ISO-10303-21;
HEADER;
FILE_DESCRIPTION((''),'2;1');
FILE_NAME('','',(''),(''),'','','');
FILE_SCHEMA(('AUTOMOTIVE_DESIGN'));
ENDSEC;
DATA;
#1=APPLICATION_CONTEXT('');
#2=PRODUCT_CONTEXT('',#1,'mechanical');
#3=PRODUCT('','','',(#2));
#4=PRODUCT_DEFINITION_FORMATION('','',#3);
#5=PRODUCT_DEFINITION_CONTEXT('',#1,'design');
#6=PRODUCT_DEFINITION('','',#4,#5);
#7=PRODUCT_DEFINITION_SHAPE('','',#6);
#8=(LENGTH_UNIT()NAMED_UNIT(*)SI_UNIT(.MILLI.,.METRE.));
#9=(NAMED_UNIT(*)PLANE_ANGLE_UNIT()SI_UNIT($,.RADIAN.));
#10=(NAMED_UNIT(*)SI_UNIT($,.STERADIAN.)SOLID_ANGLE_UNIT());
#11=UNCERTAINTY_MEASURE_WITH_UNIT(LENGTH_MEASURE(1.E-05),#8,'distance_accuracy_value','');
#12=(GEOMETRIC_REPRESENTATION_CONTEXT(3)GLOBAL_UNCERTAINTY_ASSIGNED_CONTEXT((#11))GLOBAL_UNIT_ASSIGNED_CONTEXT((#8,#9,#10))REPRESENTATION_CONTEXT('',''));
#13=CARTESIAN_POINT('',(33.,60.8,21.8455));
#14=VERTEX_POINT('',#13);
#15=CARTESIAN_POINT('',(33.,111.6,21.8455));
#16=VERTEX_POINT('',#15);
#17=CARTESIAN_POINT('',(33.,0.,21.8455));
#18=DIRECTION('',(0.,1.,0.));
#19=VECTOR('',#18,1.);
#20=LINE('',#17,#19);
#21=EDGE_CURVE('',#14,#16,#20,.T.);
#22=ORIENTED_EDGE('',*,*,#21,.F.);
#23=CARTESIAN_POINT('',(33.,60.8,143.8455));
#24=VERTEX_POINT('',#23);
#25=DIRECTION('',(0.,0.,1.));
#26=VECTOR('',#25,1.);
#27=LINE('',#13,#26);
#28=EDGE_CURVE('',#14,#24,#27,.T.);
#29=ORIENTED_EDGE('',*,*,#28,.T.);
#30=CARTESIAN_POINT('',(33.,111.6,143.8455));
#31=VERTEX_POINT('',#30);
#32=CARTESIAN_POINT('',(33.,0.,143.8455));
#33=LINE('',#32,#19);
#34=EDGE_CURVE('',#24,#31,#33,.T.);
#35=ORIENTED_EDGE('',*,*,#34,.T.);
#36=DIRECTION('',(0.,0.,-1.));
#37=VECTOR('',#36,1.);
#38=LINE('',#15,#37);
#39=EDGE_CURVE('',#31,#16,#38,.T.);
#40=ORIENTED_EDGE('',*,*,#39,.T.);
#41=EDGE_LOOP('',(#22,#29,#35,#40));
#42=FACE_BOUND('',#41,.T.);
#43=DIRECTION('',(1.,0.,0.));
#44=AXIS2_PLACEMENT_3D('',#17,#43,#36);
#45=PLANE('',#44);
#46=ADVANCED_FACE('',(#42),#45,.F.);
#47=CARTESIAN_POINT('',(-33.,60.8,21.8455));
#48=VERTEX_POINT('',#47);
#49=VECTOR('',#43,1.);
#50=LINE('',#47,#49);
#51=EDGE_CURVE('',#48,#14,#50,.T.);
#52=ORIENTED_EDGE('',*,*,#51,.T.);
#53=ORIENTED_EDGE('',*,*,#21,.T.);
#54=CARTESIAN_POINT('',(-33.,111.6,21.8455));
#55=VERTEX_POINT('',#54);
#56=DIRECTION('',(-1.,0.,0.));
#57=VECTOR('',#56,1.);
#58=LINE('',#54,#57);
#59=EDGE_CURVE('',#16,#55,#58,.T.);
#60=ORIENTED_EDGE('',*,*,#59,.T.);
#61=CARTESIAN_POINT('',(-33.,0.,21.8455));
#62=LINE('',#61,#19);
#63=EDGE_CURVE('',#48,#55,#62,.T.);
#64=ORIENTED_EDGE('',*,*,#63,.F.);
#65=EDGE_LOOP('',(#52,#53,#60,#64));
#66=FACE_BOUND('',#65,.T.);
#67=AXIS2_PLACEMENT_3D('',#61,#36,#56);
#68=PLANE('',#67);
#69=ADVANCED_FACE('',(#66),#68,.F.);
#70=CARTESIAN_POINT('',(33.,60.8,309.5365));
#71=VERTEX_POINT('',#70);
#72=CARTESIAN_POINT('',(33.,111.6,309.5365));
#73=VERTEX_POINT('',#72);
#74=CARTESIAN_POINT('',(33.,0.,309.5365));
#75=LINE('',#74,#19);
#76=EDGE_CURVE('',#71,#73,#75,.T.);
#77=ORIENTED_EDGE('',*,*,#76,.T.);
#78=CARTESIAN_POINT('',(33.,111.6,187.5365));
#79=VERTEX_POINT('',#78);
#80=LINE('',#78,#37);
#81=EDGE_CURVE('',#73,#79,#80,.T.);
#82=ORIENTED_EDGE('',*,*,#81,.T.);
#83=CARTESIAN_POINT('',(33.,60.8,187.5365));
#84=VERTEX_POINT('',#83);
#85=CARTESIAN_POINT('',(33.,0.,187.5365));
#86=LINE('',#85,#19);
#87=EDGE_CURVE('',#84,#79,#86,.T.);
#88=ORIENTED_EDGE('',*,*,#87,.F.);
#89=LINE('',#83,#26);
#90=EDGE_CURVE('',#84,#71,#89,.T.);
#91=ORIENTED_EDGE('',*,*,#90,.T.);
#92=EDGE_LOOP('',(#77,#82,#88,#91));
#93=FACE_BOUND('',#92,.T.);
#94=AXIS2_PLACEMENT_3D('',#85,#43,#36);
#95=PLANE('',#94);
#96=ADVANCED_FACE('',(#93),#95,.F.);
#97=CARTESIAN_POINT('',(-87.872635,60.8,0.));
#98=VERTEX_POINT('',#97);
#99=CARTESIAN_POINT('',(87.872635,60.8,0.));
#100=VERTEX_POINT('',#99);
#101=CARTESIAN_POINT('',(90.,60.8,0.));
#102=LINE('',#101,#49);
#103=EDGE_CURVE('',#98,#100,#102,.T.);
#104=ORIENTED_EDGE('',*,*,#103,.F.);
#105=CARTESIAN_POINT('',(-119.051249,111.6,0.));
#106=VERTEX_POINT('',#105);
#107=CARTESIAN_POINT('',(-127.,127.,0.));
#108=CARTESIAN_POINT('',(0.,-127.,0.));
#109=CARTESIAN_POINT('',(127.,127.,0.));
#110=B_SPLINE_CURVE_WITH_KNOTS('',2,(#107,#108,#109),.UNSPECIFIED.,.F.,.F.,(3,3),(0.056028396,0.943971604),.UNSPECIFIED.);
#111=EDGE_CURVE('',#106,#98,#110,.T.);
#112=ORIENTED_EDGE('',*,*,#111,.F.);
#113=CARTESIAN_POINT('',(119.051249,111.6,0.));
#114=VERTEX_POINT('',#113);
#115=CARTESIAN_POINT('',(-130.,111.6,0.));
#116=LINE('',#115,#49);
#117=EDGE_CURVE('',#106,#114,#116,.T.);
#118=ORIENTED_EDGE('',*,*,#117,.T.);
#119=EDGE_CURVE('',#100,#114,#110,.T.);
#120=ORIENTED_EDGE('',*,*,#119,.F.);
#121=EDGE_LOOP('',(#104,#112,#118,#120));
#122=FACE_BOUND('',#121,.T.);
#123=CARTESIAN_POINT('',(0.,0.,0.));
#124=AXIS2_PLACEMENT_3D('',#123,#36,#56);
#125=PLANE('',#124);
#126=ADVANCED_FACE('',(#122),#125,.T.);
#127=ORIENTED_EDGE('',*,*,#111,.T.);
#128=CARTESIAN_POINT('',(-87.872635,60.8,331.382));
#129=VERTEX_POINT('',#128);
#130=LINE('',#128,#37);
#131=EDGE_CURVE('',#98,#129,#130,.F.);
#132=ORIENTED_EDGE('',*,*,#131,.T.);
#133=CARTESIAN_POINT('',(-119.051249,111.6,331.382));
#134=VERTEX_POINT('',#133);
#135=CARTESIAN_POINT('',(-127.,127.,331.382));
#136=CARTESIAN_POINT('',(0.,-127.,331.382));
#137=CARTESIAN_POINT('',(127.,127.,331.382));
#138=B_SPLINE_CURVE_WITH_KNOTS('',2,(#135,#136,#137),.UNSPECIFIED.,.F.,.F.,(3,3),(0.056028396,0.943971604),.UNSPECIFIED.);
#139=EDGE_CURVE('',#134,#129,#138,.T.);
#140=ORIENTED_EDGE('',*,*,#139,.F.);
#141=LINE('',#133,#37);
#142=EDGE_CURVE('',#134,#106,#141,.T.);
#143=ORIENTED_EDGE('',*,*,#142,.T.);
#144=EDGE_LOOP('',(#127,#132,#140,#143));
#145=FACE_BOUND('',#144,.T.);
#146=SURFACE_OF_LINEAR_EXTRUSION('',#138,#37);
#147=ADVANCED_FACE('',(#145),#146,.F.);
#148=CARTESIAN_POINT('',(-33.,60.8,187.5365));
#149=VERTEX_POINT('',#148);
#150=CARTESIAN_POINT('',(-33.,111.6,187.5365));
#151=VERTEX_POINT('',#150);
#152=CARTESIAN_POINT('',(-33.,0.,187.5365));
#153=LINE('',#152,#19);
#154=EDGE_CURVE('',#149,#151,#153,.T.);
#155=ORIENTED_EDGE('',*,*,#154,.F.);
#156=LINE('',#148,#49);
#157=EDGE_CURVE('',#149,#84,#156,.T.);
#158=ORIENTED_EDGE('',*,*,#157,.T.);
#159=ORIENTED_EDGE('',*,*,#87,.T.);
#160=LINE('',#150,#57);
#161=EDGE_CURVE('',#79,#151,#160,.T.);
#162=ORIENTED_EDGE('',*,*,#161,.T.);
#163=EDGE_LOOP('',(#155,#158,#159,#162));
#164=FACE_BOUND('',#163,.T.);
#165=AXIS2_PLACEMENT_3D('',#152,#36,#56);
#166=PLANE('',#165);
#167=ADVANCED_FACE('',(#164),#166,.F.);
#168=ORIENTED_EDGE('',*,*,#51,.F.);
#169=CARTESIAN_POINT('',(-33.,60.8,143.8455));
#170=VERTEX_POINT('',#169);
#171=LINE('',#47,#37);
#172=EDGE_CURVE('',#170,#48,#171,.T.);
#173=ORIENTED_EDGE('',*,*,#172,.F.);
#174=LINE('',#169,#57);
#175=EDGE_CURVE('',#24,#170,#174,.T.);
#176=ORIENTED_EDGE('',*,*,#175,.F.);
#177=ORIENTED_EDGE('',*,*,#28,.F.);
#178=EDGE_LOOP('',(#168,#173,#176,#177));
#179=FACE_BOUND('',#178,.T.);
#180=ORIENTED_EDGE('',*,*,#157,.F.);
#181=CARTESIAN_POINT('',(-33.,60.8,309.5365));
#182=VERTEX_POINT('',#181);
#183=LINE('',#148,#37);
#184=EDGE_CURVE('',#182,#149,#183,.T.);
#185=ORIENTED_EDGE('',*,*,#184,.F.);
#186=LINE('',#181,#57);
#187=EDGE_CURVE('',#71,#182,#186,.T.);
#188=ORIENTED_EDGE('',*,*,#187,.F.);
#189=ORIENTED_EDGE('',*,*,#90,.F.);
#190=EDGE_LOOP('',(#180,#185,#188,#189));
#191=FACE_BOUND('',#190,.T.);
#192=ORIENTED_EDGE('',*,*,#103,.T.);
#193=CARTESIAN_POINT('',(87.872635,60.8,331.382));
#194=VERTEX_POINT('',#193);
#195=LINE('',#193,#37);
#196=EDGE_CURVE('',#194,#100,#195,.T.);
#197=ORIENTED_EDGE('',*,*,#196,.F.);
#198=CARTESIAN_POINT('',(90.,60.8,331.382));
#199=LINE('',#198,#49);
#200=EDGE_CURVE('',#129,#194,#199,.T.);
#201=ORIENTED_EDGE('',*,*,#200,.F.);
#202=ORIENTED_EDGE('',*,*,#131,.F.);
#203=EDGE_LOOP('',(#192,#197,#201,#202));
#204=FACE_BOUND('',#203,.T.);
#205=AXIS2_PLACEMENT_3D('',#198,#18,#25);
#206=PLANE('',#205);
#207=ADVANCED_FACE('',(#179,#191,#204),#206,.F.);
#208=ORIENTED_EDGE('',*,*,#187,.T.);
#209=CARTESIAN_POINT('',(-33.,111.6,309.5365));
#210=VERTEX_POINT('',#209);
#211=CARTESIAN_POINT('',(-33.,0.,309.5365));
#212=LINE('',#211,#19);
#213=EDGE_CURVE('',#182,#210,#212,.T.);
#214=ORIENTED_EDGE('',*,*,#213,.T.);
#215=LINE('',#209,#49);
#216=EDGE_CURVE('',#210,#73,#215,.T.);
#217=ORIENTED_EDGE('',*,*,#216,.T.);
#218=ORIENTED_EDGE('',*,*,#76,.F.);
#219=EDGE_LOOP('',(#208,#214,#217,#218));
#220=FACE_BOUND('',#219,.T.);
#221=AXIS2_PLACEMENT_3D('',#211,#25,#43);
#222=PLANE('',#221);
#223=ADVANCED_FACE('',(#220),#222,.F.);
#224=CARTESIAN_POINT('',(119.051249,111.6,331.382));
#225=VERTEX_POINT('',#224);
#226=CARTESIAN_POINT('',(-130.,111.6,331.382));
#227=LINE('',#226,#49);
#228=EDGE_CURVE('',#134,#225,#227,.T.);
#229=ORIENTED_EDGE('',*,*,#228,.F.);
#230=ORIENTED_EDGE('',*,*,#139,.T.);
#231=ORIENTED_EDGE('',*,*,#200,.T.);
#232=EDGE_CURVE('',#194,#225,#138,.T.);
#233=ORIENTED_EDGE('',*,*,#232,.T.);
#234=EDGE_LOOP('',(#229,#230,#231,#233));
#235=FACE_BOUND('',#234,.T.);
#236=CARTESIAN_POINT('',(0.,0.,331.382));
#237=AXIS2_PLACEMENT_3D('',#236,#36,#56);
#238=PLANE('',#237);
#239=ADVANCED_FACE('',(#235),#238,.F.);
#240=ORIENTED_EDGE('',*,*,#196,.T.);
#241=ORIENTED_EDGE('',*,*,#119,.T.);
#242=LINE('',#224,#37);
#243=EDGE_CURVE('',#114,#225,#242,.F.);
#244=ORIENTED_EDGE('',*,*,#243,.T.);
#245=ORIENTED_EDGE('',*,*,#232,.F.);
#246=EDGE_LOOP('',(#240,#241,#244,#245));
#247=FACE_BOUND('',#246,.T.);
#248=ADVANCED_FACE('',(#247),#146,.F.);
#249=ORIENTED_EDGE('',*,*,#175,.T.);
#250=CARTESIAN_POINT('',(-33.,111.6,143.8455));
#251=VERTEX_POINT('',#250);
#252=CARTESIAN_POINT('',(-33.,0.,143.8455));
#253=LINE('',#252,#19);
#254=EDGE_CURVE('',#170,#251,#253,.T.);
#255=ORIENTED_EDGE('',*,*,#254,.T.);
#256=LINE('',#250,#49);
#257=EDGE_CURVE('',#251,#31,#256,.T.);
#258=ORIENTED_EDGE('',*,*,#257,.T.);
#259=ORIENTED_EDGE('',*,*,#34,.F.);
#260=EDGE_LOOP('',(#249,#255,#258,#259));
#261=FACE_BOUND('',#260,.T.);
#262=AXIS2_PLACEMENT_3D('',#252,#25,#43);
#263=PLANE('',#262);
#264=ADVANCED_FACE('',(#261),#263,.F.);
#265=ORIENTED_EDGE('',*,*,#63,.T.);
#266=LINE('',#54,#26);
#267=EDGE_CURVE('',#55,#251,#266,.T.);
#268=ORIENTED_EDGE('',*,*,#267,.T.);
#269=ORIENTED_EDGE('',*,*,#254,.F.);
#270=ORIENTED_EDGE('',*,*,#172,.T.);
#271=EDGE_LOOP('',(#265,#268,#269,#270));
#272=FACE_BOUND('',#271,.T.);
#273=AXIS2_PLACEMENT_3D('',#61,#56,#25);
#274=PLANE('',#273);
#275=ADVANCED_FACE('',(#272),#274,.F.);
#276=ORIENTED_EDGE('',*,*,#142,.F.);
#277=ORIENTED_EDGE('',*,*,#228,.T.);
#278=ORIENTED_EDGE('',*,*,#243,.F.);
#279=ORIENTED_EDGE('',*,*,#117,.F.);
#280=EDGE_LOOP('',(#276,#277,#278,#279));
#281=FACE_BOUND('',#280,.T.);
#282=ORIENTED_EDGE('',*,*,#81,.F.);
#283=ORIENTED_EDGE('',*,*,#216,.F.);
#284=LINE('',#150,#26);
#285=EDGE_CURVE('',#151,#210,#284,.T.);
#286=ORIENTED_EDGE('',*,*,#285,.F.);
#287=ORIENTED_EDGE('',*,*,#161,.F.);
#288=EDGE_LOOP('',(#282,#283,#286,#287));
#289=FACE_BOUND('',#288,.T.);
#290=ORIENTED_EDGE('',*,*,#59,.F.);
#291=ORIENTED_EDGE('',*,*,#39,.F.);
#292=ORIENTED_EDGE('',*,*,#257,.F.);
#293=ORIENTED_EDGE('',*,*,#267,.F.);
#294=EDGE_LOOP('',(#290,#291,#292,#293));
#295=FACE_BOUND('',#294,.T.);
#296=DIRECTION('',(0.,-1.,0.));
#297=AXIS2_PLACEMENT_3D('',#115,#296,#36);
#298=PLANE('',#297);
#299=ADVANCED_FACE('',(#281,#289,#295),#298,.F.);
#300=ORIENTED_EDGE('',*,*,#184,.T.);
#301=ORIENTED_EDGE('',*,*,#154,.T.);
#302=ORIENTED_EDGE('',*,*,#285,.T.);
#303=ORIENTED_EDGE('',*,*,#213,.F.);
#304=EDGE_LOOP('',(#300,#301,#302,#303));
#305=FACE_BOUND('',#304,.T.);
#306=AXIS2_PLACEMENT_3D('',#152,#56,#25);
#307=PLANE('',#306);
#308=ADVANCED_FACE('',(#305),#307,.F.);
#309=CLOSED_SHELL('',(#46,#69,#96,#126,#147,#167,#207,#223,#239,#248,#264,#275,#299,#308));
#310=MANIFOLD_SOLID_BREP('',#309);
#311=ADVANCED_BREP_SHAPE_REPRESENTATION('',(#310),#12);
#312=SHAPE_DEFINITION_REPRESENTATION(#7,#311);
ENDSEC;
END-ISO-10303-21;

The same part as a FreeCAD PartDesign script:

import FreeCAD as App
import Part
import Sketcher


def add_polygon(sketch, points):
    """Adds a closed chain of lines whose ends are joined by coincident constraints."""
    first, n = sketch.GeometryCount, len(points)
    for a, b in zip(points, points[1:] + points[:1]):
        sketch.addGeometry(Part.LineSegment(App.Vector(*a, 0), App.Vector(*b, 0)), False)
    for i in range(n):
        sketch.addConstraint(Sketcher.Constraint("Coincident", first + i, 2, first + (i + 1) % n, 1))

doc = App.newDocument("Part")
body = doc.addObject("PartDesign::Body", "Body")

sketch1 = body.newObject("Sketcher::SketchObject", "Sketch")
sketch1.AttachmentSupport = (doc.getObject("XY_Plane"), [""])
sketch1.MapMode = "FlatFace"
sketch1.addGeometry(Part.LineSegment(App.Vector(127, 127, 0), App.Vector(-127, 127, 0)), False)
sketch1.addGeometry(Part.BSplineCurve([App.Vector(-127, 127, 0), App.Vector(0, -127, 0), App.Vector(127, 127, 0)], [3, 3], [0.056028396, 0.943971604], False, 2, [1, 1, 1], False), False)
sketch1.addConstraint(Sketcher.Constraint("Block", 1))
sketch1.addConstraint(Sketcher.Constraint("Coincident", 0, 1, 1, 2))
sketch1.addConstraint(Sketcher.Constraint("Coincident", 1, 1, 0, 2))
pad1 = body.newObject("PartDesign::Pad", "Pad")
pad1.Profile = sketch1
pad1.Length = 331.382

sketch2 = body.newObject("Sketcher::SketchObject", "Sketch001")
sketch2.AttachmentSupport = (doc.getObject("XZ_Plane"), [""])
sketch2.MapMode = "FlatFace"
sketch2.AttachmentOffset = App.Placement(App.Vector(0, 0, -127), App.Rotation())
add_polygon(sketch2, [(-33, 22), (-33, 144), (33, 144), (33, 22)])
add_polygon(sketch2, [(-33, 188), (-33, 310), (33, 310), (33, 188)])
sketch2.addConstraint(Sketcher.Constraint("Vertical", 0))
sketch2.addConstraint(Sketcher.Constraint("Horizontal", 1))
sketch2.addConstraint(Sketcher.Constraint("Vertical", 2))
sketch2.addConstraint(Sketcher.Constraint("Horizontal", 3))
sketch2.addConstraint(Sketcher.Constraint("Vertical", 4))
sketch2.addConstraint(Sketcher.Constraint("Horizontal", 5))
sketch2.addConstraint(Sketcher.Constraint("Vertical", 6))
sketch2.addConstraint(Sketcher.Constraint("Horizontal", 7))
sketch2.addConstraint(Sketcher.Constraint("Vertical", 3, 2, 4, 2))
sketch2.addConstraint(Sketcher.Constraint("Vertical", 2, 2, 5, 2))
sketch2.addConstraint(Sketcher.Constraint("Equal", 2, 4))
sketch2.addConstraint(Sketcher.Constraint("DistanceX", 1, 1, 1, 2, 66.0))
sketch2.addConstraint(Sketcher.Constraint("DistanceY", 0, 1, 0, 2, 122.0))
sketch2.addConstraint(Sketcher.Constraint("DistanceX", 0, 2, -1, 1, 33.0))
sketch2.addConstraint(Sketcher.Constraint("DistanceY", 0, 2, 4, 2, 165.691))
sketch2.addConstraint(Sketcher.Constraint("DistanceY", -1, 1, 0, 2, 143.8455))
pocket1 = body.newObject("PartDesign::Pocket", "Pocket")
pocket1.Profile = sketch2
pocket1.Type = "ThroughAll"
pocket1.Reversed = True

sketch3 = body.newObject("Sketcher::SketchObject", "Sketch002")
sketch3.AttachmentSupport = (doc.getObject("XY_Plane"), [""])
sketch3.MapMode = "FlatFace"
add_polygon(sketch3, [(90, 61), (90, 0), (-90, 0), (-90, 61)])
sketch3.addConstraint(Sketcher.Constraint("Vertical", 0))
sketch3.addConstraint(Sketcher.Constraint("Horizontal", 1))
sketch3.addConstraint(Sketcher.Constraint("Vertical", 2))
sketch3.addConstraint(Sketcher.Constraint("Horizontal", 3))
sketch3.addConstraint(Sketcher.Constraint("Symmetric", 0, 2, 1, 2, -1, 1))
sketch3.addConstraint(Sketcher.Constraint("DistanceX", 1, 2, 1, 1, 180.0))
sketch3.addConstraint(Sketcher.Constraint("DistanceY", 0, 2, 0, 1, 60.8))
pocket2 = body.newObject("PartDesign::Pocket", "Pocket001")
pocket2.Profile = sketch3
pocket2.Type = "ThroughAll"
pocket2.Reversed = True

sketch4 = body.newObject("Sketcher::SketchObject", "Sketch003")
sketch4.AttachmentSupport = (doc.getObject("XY_Plane"), [""])
sketch4.MapMode = "FlatFace"
sketch4.AttachmentOffset = App.Placement(App.Vector(0, 0, 331.382), App.Rotation())
add_polygon(sketch4, [(-130, 132), (-130, 112), (130, 112), (130, 132)])
sketch4.addConstraint(Sketcher.Constraint("Vertical", 0))
sketch4.addConstraint(Sketcher.Constraint("Horizontal", 1))
sketch4.addConstraint(Sketcher.Constraint("Vertical", 2))
sketch4.addConstraint(Sketcher.Constraint("Horizontal", 3))
sketch4.addConstraint(Sketcher.Constraint("DistanceX", 1, 1, 1, 2, 260.0))
sketch4.addConstraint(Sketcher.Constraint("DistanceY", 0, 2, 0, 1, 20.0))
sketch4.addConstraint(Sketcher.Constraint("DistanceX", 0, 2, -1, 1, 130.0))
sketch4.addConstraint(Sketcher.Constraint("DistanceY", -1, 1, 0, 2, 111.6))
pocket3 = body.newObject("PartDesign::Pocket", "Pocket002")
pocket3.Profile = sketch4
pocket3.Type = "ThroughAll"

doc.recompute()
